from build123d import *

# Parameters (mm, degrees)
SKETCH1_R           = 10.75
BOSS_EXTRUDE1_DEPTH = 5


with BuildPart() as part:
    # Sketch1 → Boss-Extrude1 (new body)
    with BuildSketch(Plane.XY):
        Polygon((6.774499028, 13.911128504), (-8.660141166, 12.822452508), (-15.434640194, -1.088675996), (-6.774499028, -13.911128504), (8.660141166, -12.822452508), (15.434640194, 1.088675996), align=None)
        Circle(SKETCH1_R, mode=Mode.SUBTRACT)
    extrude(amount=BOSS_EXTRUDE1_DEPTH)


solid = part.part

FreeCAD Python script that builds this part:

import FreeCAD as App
import Part
import Sketcher

doc = App.newDocument("Part")
body = doc.addObject("PartDesign::Body", "Body")

sketch1 = body.newObject("Sketcher::SketchObject", "Sketch")
sketch1.AttachmentSupport = (doc.getObject("XY_Plane"), [""])
sketch1.MapMode = "FlatFace"
sketch1.addGeometry([
    Part.LineSegment(App.Vector(6.774499, 13.911129, 0), App.Vector(-8.660141, 12.822453, 0)),
    Part.LineSegment(App.Vector(-8.660141, 12.822453, 0), App.Vector(-15.43464, -1.088676, 0)),
    Part.LineSegment(App.Vector(-15.43464, -1.088676, 0), App.Vector(-6.774499, -13.911129, 0)),
    Part.LineSegment(App.Vector(-6.774499, -13.911129, 0), App.Vector(8.660141, -12.822453, 0)),
    Part.LineSegment(App.Vector(8.660141, -12.822453, 0), App.Vector(15.43464, 1.088676, 0)),
    Part.LineSegment(App.Vector(15.43464, 1.088676, 0), App.Vector(6.774499, 13.911129, 0)),
    Part.Circle(App.Vector(0, 0, 0), App.Vector(0, 0, 1), 10.75),
], False)
sketch1.addConstraint([
    Sketcher.Constraint("Coincident", 0, 2, 1, 1),
    Sketcher.Constraint("Coincident", 1, 2, 2, 1),
    Sketcher.Constraint("Coincident", 2, 2, 3, 1),
    Sketcher.Constraint("Coincident", 3, 2, 4, 1),
    Sketcher.Constraint("Coincident", 4, 2, 5, 1),
    Sketcher.Constraint("Coincident", 5, 2, 0, 1),
    Sketcher.Constraint("Coincident", 6, 3, -1, 1),
    Sketcher.Constraint("Symmetric", 0, 2, 3, 2, -1, 1),
    Sketcher.Constraint("Symmetric", 1, 2, 4, 2, -1, 1),
    Sketcher.Constraint("Symmetric", 2, 2, 5, 2, -1, 1),
    Sketcher.Constraint("Equal", 0, 1),
    Sketcher.Constraint("Equal", 1, 2),
    Sketcher.Constraint("Diameter", 6, 21.5),
    Sketcher.Constraint("DistanceX", 2, 2, -1, 1, 6.774499),
    Sketcher.Constraint("DistanceX", 1, 2, 0, 2, 6.774499),
    Sketcher.Constraint("DistanceX", 0, 2, -1, 1, 8.660141),
    Sketcher.Constraint("DistanceY", 2, 2, -1, 1, 13.911129),
])
pad1 = body.newObject("PartDesign::Pad", "Pad")
pad1.Profile = sketch1
pad1.Length = 5

doc.recompute()
